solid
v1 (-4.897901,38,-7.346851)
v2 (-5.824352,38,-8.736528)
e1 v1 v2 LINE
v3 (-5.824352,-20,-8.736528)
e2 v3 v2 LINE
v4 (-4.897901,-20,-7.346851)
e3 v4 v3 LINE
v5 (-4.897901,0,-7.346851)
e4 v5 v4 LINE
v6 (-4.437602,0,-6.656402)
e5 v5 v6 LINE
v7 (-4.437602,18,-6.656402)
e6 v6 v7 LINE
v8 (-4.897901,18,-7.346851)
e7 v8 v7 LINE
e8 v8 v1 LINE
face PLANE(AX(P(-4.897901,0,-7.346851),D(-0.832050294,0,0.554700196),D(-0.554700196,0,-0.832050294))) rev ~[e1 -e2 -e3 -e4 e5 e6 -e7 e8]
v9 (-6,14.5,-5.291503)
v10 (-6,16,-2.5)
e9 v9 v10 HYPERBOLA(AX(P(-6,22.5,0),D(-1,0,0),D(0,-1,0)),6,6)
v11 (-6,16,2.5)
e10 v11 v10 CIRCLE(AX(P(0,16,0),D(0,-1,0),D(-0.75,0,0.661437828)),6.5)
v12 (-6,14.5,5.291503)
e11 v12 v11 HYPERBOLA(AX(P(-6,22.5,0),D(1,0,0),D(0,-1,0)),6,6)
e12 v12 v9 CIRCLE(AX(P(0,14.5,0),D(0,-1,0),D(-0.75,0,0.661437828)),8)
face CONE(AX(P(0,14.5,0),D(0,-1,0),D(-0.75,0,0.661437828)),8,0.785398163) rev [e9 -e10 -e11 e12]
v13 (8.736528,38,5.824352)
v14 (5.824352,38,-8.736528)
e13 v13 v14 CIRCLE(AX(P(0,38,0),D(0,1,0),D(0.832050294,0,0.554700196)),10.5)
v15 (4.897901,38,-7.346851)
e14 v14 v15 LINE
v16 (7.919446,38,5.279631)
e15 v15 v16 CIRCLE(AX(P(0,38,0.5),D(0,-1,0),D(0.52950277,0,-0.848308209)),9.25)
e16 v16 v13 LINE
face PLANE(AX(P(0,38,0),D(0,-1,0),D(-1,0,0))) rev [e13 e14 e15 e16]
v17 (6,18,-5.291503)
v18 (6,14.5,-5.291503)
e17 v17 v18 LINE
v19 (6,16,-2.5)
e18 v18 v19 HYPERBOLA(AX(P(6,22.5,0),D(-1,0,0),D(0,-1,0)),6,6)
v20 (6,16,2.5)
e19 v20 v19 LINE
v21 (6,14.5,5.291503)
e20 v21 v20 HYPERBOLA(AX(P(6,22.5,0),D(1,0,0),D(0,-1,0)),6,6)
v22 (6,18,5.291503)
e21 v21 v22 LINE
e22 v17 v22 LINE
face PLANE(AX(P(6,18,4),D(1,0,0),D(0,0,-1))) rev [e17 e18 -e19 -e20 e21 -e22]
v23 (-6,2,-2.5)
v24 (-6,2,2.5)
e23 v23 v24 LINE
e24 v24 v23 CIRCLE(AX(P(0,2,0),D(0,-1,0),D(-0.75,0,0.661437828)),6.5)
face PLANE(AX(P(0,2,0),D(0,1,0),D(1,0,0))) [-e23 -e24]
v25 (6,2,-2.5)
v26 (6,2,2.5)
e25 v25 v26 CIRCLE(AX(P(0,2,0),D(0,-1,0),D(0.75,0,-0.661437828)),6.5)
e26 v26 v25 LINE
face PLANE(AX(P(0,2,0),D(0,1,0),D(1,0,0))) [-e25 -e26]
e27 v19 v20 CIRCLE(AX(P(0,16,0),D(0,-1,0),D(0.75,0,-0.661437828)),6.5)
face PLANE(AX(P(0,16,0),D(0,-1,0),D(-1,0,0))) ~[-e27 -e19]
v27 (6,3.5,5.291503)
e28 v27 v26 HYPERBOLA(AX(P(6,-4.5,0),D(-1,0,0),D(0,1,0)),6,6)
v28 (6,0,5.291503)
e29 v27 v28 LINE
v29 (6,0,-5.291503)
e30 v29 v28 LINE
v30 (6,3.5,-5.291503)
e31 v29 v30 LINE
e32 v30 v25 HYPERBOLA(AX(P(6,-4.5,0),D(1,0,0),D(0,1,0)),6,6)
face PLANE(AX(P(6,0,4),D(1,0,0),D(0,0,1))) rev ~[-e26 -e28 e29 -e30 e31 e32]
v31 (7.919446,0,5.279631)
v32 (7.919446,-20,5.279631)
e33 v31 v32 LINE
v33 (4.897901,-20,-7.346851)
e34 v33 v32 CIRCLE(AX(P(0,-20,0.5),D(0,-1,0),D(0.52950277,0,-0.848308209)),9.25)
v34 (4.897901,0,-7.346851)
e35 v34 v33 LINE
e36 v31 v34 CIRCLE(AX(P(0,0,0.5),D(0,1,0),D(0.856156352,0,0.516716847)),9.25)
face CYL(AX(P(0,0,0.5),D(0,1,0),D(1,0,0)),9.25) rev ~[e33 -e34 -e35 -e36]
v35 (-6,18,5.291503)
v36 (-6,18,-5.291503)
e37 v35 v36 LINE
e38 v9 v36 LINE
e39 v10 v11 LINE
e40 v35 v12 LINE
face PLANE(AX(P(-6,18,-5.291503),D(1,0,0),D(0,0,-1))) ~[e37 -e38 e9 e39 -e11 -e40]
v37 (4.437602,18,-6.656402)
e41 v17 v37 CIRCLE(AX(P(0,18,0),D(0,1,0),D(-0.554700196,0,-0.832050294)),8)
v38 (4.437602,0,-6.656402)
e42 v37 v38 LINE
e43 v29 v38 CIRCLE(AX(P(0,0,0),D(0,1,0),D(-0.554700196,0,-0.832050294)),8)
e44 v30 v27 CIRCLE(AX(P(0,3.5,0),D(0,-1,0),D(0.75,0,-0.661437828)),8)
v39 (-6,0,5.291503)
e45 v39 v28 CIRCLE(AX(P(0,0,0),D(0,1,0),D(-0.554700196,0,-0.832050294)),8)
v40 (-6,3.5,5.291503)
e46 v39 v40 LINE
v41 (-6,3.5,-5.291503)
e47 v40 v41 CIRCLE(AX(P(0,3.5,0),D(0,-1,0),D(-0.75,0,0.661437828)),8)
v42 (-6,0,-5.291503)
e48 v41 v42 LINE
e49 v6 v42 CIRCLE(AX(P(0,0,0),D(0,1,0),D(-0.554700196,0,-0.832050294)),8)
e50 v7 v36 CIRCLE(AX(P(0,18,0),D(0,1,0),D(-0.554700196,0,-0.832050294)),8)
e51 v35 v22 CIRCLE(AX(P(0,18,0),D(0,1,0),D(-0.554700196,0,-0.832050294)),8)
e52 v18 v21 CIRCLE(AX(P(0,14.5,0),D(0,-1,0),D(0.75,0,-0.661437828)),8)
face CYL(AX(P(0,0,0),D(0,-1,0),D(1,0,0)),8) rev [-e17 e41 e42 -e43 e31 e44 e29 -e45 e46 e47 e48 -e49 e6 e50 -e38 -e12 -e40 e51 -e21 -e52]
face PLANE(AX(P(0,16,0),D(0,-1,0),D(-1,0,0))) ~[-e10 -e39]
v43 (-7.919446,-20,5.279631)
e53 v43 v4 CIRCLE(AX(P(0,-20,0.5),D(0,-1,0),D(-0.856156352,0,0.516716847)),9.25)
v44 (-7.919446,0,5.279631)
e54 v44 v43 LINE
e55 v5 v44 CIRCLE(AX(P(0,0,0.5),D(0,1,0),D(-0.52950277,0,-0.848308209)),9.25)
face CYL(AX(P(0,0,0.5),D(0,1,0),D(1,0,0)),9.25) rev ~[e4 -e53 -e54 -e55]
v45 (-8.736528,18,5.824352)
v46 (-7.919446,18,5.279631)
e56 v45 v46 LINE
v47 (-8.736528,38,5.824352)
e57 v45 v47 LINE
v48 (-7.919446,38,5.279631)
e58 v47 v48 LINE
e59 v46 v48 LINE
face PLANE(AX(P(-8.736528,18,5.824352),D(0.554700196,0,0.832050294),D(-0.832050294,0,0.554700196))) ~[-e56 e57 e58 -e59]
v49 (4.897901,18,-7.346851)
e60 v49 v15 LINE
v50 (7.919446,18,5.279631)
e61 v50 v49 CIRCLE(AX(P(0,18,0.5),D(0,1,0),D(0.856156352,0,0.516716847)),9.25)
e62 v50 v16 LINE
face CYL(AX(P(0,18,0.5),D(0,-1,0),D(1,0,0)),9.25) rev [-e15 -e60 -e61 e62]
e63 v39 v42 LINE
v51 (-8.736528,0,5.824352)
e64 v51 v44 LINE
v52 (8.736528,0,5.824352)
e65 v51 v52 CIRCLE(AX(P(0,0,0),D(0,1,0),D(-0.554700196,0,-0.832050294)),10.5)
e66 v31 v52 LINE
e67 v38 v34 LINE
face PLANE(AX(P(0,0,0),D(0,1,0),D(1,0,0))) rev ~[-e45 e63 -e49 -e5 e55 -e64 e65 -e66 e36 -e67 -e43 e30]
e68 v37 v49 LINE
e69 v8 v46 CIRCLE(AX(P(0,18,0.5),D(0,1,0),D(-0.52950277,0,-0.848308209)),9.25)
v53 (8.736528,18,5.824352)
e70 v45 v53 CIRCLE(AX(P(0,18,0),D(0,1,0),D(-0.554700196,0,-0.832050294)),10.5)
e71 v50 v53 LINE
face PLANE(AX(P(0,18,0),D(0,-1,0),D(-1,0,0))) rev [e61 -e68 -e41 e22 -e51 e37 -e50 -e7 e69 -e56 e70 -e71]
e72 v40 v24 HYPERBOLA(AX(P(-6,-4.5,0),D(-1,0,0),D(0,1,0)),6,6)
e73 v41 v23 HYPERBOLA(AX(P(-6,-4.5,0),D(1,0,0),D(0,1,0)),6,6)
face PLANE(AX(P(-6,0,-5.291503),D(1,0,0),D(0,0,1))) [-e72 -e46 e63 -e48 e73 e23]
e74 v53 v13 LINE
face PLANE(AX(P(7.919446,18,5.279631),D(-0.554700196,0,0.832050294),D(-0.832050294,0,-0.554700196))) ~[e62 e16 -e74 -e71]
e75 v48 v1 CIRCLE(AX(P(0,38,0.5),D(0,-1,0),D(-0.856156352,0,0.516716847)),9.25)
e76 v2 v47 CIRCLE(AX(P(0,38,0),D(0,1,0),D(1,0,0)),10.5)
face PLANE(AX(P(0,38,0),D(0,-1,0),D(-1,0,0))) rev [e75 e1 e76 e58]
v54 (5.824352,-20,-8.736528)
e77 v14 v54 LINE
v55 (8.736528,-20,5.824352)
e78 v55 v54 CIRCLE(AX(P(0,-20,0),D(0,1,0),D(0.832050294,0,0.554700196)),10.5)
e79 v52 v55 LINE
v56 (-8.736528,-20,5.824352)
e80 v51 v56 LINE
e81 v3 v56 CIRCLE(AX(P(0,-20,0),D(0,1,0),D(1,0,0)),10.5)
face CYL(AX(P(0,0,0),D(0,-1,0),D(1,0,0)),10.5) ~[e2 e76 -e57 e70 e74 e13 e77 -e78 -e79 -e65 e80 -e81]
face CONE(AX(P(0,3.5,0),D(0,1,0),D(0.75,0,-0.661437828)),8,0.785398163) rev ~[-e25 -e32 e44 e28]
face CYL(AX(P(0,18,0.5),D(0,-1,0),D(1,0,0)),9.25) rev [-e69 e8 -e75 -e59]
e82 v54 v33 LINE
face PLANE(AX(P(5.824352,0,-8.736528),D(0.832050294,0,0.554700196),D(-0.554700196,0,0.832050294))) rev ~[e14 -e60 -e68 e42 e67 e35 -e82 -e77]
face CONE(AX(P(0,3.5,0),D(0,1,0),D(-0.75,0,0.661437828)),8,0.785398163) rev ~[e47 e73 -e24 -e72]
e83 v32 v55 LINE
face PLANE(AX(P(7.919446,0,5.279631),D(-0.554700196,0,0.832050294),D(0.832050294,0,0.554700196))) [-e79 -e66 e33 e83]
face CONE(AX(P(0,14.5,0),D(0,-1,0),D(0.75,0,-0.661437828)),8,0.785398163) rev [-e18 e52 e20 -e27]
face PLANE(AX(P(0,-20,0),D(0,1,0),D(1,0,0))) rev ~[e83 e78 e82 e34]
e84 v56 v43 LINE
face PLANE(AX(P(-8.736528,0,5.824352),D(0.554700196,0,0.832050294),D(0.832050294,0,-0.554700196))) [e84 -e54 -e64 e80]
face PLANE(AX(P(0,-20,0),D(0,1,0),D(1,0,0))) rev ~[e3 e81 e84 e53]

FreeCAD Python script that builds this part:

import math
import FreeCAD as App
import Part
import Sketcher
from FreeCAD import Vector
Q = App.Units.Quantity


def edges_at(feature, points):
    """Names of the edges that pass closest to the given points."""
    edges = feature.Shape.Edges
    near = lambda p: min(range(len(edges)), key=lambda i: edges[i].distToShape(Part.Vertex(*p))[0])
    return sorted({f"Edge{near(p) + 1}" for p in points})

doc = App.newDocument("Part")
body = doc.addObject("PartDesign::Body", "Body")

sketch1 = body.newObject("Sketcher::SketchObject", "Sketch")
sketch1.AttachmentSupport = (doc.getObject("XZ_Plane"), [""])
sketch1.MapMode = "FlatFace"
sketch1.addGeometry([
    Part.LineSegment(Vector(5.824352, -8.736528, 0), Vector(4.437602, -6.656402, 0)),
    Part.ArcOfCircle(Part.Circle(Vector(0, 0, 0), Vector(0, 0, 1), 8), math.radians(-56.309932), math.radians(236.309932)),
    Part.LineSegment(Vector(-4.437602, -6.656402, 0), Vector(-5.824352, -8.736528, 0)),
    Part.ArcOfCircle(Part.Circle(Vector(0, 0, 0), Vector(0, 0, 1), 10.5), math.radians(-56.309932), math.radians(236.309932)),
], False)
sketch1.addConstraint([
    Sketcher.Constraint("Coincident", 0, 2, 1, 1),
    Sketcher.Constraint("Coincident", 1, 2, 2, 1),
    Sketcher.Constraint("Coincident", 2, 2, 3, 2),
    Sketcher.Constraint("Coincident", 3, 1, 0, 1),
    Sketcher.Constraint("Coincident", 1, 3, -1, 1),
    Sketcher.Constraint("Coincident", 3, 3, -1, 1),
    Sketcher.Constraint("Horizontal", 0, 2, 1, 2),
    Sketcher.Constraint("Horizontal", 2, 2, 3, 1),
    Sketcher.Constraint("Radius", 1, 8.0),
    Sketcher.Constraint("Radius", 3, 10.5),
    Sketcher.Constraint("Angle", 0, Q("123.69 deg")),
    Sketcher.Constraint("DistanceX", 2, 2, 0, 2, 10.262),
])
pad1 = body.newObject("PartDesign::Pad", "Pad")
pad1.Profile = sketch1
pad1.Length = 9
pad1.Reversed = True

sketch2 = body.newObject("Sketcher::SketchObject", "Sketch001")
sketch2.AttachmentSupport = (doc.getObject("XZ_Plane"), [""])
sketch2.MapMode = "FlatFace"
sketch2.addGeometry([
    Part.ArcOfCircle(Part.Circle(Vector(0, 0, 0), Vector(0, 0, 1), 10.5), math.radians(-56.309932), math.radians(33.690068)),
    Part.LineSegment(Vector(5.824352, -8.736528, 0), Vector(4.897901, -7.346851, 0)),
    Part.ArcOfCircle(Part.Circle(Vector(0, 0.5, 0), Vector(0, 0, 1), 9.25), math.radians(-58.028135), math.radians(31.112281)),
    Part.LineSegment(Vector(7.919446, 5.279631, 0), Vector(8.736528, 5.824352, 0)),
    Part.LineSegment(Vector(-4.897901, -7.346851, 0), Vector(-5.824352, -8.736528, 0)),
    Part.ArcOfCircle(Part.Circle(Vector(0, 0, 0), Vector(0, 0, 1), 10.5), math.radians(146.309932), math.radians(236.309932)),
    Part.LineSegment(Vector(-8.736528, 5.824352, 0), Vector(-7.919446, 5.279631, 0)),
    Part.ArcOfCircle(Part.Circle(Vector(0, 0.5, 0), Vector(0, 0, 1), 9.25), math.radians(148.887719), math.radians(238.028135)),
], False)
sketch2.addConstraint([
    Sketcher.Constraint("Coincident", 0, 1, 1, 1),
    Sketcher.Constraint("Coincident", 1, 2, 2, 1),
    Sketcher.Constraint("Coincident", 2, 2, 3, 1),
    Sketcher.Constraint("Coincident", 3, 2, 0, 2),
    Sketcher.Constraint("Coincident", 4, 2, 5, 2),
    Sketcher.Constraint("Coincident", 5, 1, 6, 1),
    Sketcher.Constraint("Coincident", 6, 2, 7, 1),
    Sketcher.Constraint("Coincident", 7, 2, 4, 1),
    Sketcher.Constraint("Coincident", 0, 3, -1, 1),
    Sketcher.Constraint("Coincident", 5, 3, -1, 1),
    Sketcher.Constraint("Coincident", 7, 3, 2, 3),
    Sketcher.Constraint("Equal", 0, 5),
    Sketcher.Constraint("Equal", 2, 7),
    Sketcher.Constraint("Symmetric", 2, 2, 6, 2, -2),
    Sketcher.Constraint("Perpendicular", 1, 3),
    Sketcher.Constraint("Perpendicular", 4, 6),
    Sketcher.Constraint("Horizontal", 0, 1, 4, 2),
    Sketcher.Constraint("Horizontal", 3, 2, 5, 1),
    Sketcher.Constraint("Radius", 0, 10.5),
    Sketcher.Constraint("Radius", 2, 9.25),
    Sketcher.Constraint("DistanceY", -1, 1, 2, 3, 0.5),
    Sketcher.Constraint("Angle", 1, Q("123.69 deg")),
    Sketcher.Constraint("Distance", 3, 0.982),
    Sketcher.Constraint("DistanceX", -1, 1, 1, 2, 4.898),
])
pad2 = body.newObject("PartDesign::Pad", "Pad001")
pad2.Profile = sketch2
pad2.Length = 20

sketch3 = body.newObject("Sketcher::SketchObject", "Sketch002")
sketch3.AttachmentSupport = (doc.getObject("XZ_Plane"), [""])
sketch3.MapMode = "FlatFace"
sketch3.addGeometry([
    Part.ArcOfCircle(Part.Circle(Vector(0, 0, 0), Vector(0, 0, 1), 8), math.radians(-41.409622), math.radians(41.409622)),
    Part.LineSegment(Vector(6, -5.291503, 0), Vector(6, 5.291503, 0)),
    Part.ArcOfCircle(Part.Circle(Vector(0, 0, 0), Vector(0, 0, 1), 8), math.radians(138.590378), math.radians(221.409622)),
    Part.LineSegment(Vector(-6, 5.291503, 0), Vector(-6, -5.291503, 0)),
], False)
sketch3.addConstraint([
    Sketcher.Constraint("Coincident", 0, 1, 1, 1),
    Sketcher.Constraint("Coincident", 1, 2, 0, 2),
    Sketcher.Constraint("Coincident", 2, 1, 3, 1),
    Sketcher.Constraint("Coincident", 3, 2, 2, 2),
    Sketcher.Constraint("Vertical", 1),
    Sketcher.Constraint("Vertical", 3),
    Sketcher.Constraint("Coincident", 0, 3, -1, 1),
    Sketcher.Constraint("Coincident", 2, 3, -1, 1),
    Sketcher.Constraint("Equal", 0, 2),
    Sketcher.Constraint("Horizontal", 1, 2, 2, 1),
    Sketcher.Constraint("Radius", 0, 8.0),
    Sketcher.Constraint("DistanceX", -1, 1, 0, 1, 6.0),
])
pad3 = body.newObject("PartDesign::Pad", "Pad002")
pad3.Profile = sketch3
pad3.Length = 2
pad3.Reversed = True
doc.recompute()

chamfer = body.newObject("PartDesign::Chamfer", "Chamfer")
chamfer.Base = (pad3, edges_at(pad3, [(8, 2, 0)]))
chamfer.Size = 1.5
doc.recompute()

chamfer2 = body.newObject("PartDesign::Chamfer", "Chamfer001")
chamfer2.Base = (chamfer, edges_at(chamfer, [(-8, 2, 0)]))
chamfer2.Size = 1.5
doc.recompute()

datumplane = body.newObject("PartDesign::Plane", "DatumPlane")
datumplane.AttachmentSupport = (doc.getObject("XZ_Plane"), [""])
datumplane.MapMode = "FlatFace"
datumplane.AttachmentOffset = App.Placement(Vector(0, 0, -9), App.Rotation())
mirrored = body.newObject("PartDesign::Mirrored", "Mirrored")
mirrored.TransformMode = "Transform body"
mirrored.MirrorPlane = (datumplane, [""])
body.Tip = mirrored

doc.recompute()
